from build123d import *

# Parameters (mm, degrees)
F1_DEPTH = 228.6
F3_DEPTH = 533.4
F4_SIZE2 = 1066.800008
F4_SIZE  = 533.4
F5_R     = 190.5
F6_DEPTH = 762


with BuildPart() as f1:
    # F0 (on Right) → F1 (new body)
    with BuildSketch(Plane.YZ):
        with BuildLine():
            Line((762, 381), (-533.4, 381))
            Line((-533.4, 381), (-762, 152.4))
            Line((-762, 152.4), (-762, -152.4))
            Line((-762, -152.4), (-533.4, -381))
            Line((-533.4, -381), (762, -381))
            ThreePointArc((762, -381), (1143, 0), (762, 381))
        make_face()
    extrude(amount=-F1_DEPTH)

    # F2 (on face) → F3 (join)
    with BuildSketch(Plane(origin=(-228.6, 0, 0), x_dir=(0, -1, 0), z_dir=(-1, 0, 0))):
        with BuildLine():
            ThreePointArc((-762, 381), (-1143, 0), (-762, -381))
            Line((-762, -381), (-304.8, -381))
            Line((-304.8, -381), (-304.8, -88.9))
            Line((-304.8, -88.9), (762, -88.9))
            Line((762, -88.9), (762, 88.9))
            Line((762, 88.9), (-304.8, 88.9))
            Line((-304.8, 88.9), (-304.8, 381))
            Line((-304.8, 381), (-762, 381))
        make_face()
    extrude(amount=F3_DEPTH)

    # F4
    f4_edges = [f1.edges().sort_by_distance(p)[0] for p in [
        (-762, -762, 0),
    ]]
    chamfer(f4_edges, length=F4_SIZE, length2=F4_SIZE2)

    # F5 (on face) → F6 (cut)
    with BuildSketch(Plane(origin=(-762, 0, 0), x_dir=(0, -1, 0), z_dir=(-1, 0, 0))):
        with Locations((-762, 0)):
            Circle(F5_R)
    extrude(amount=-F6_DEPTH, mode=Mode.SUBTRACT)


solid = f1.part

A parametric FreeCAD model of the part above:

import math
import FreeCAD as App
import Part
import Sketcher
from FreeCAD import Vector
Q = App.Units.Quantity


def edges_at(feature, points):
    """Names of the edges that pass closest to the given points."""
    edges = feature.Shape.Edges
    near = lambda p: min(range(len(edges)), key=lambda i: edges[i].distToShape(Part.Vertex(*p))[0])
    return sorted({f"Edge{near(p) + 1}" for p in points})

doc = App.newDocument("Part")
body = doc.addObject("PartDesign::Body", "Body")

# Sketch on YZ plane
sketch1 = body.newObject("Sketcher::SketchObject", "Sketch")
sketch1.AttachmentSupport = (doc.getObject("YZ_Plane"), [""])
sketch1.MapMode = "FlatFace"
sketch1.addGeometry(Part.LineSegment(Vector(762, 381, 0), Vector(-533.4, 381, 0)), False)
sketch1.addGeometry(Part.LineSegment(Vector(-533.4, 381, 0), Vector(-762, 152.4, 0)), False)
sketch1.addGeometry(Part.LineSegment(Vector(-762, 152.4, 0), Vector(-762, -152.4, 0)), False)
sketch1.addGeometry(Part.LineSegment(Vector(-762, -152.4, 0), Vector(-533.4, -381, 0)), False)
sketch1.addGeometry(Part.LineSegment(Vector(-533.4, -381, 0), Vector(762, -381, 0)), False)
sketch1.addGeometry(Part.ArcOfCircle(Part.Circle(Vector(762, 0, 0), Vector(0, 0, 1), 381), math.radians(-90), math.radians(90)), False)
sketch1.addConstraint(Sketcher.Constraint("Coincident", 0, 2, 1, 1))
sketch1.addConstraint(Sketcher.Constraint("Coincident", 1, 2, 2, 1))
sketch1.addConstraint(Sketcher.Constraint("Coincident", 2, 2, 3, 1))
sketch1.addConstraint(Sketcher.Constraint("Coincident", 3, 2, 4, 1))
sketch1.addConstraint(Sketcher.Constraint("Tangent", 4, 2, 5, 1))
sketch1.addConstraint(Sketcher.Constraint("Tangent", 5, 2, 0, 1))
sketch1.addConstraint(Sketcher.Constraint("Horizontal", 0))
sketch1.addConstraint(Sketcher.Constraint("Vertical", 2))
sketch1.addConstraint(Sketcher.Constraint("Horizontal", 4))
sketch1.addConstraint(Sketcher.Constraint("Symmetric", 0, 2, 3, 2, -1))
sketch1.addConstraint(Sketcher.Constraint("Perpendicular", 1, 3))
sketch1.addConstraint(Sketcher.Constraint("Equal", 1, 3))
sketch1.addConstraint(Sketcher.Constraint("Radius", 5, Q("15 in")))
sketch1.addConstraint(Sketcher.Constraint("DistanceX", 0, 2, 0, 1, Q("51 in")))
sketch1.addConstraint(Sketcher.Constraint("DistanceY", 2, 2, 2, 1, Q("12 in")))
sketch1.addConstraint(Sketcher.Constraint("DistanceX", -1, 1, 5, 3, Q("30 in")))
pad1 = body.newObject("PartDesign::Pad", "Pad")
pad1.Profile = sketch1
pad1.Length = Q("9 in")
pad1.Reversed = True

# Sketch on YZ plane
sketch2 = body.newObject("Sketcher::SketchObject", "Sketch001")
sketch2.AttachmentSupport = (doc.getObject("YZ_Plane"), [""])
sketch2.MapMode = "FlatFace"
sketch2.AttachmentOffset = App.Placement(Vector(0, 0, -9 * 25.4), App.Rotation())
sketch2.addGeometry(Part.ArcOfCircle(Part.Circle(Vector(762, 0, 0), Vector(0, 0, 1), 381), math.radians(-90), math.radians(90)), False)
sketch2.addGeometry(Part.LineSegment(Vector(762, -381, 0), Vector(304.8, -381, 0)), False)
sketch2.addGeometry(Part.LineSegment(Vector(304.8, -381, 0), Vector(304.8, -88.9, 0)), False)
sketch2.addGeometry(Part.LineSegment(Vector(304.8, -88.9, 0), Vector(-762, -88.9, 0)), False)
sketch2.addGeometry(Part.LineSegment(Vector(-762, -88.9, 0), Vector(-762, 88.9, 0)), False)
sketch2.addGeometry(Part.LineSegment(Vector(-762, 88.9, 0), Vector(304.8, 88.9, 0)), False)
sketch2.addGeometry(Part.LineSegment(Vector(304.8, 88.9, 0), Vector(304.8, 381, 0)), False)
sketch2.addGeometry(Part.LineSegment(Vector(304.8, 381, 0), Vector(762, 381, 0)), False)
sketch2.addConstraint(Sketcher.Constraint("Tangent", 0, 1, 1, 1))
sketch2.addConstraint(Sketcher.Constraint("Coincident", 1, 2, 2, 1))
sketch2.addConstraint(Sketcher.Constraint("Coincident", 2, 2, 3, 1))
sketch2.addConstraint(Sketcher.Constraint("Coincident", 3, 2, 4, 1))
sketch2.addConstraint(Sketcher.Constraint("Coincident", 4, 2, 5, 1))
sketch2.addConstraint(Sketcher.Constraint("Coincident", 5, 2, 6, 1))
sketch2.addConstraint(Sketcher.Constraint("Coincident", 6, 2, 7, 1))
sketch2.addConstraint(Sketcher.Constraint("Tangent", 7, 2, 0, 2))
sketch2.addConstraint(Sketcher.Constraint("Horizontal", 1))
sketch2.addConstraint(Sketcher.Constraint("Vertical", 2))
sketch2.addConstraint(Sketcher.Constraint("Horizontal", 3))
sketch2.addConstraint(Sketcher.Constraint("Vertical", 4))
sketch2.addConstraint(Sketcher.Constraint("Horizontal", 5))
sketch2.addConstraint(Sketcher.Constraint("Vertical", 6))
sketch2.addConstraint(Sketcher.Constraint("Horizontal", 7))
sketch2.addConstraint(Sketcher.Constraint("Symmetric", 2, 2, 5, 2, -1))
sketch2.addConstraint(Sketcher.Constraint("PointOnObject", 0, 3, -1))
sketch2.addConstraint(Sketcher.Constraint("Radius", 0, Q("15 in")))
sketch2.addConstraint(Sketcher.Constraint("DistanceX", 1, 2, 1, 1, Q("18 in")))
sketch2.addConstraint(Sketcher.Constraint("DistanceX", 3, 2, 3, 1, Q("42 in")))
sketch2.addConstraint(Sketcher.Constraint("DistanceY", 4, 1, 4, 2, Q("7 in")))
sketch2.addConstraint(Sketcher.Constraint("DistanceX", -1, 1, 0, 3, Q("30 in")))
pad2 = body.newObject("PartDesign::Pad", "Pad001")
pad2.Profile = sketch2
pad2.Length = Q("21 in")
pad2.Reversed = True
doc.recompute()

chamfer = body.newObject("PartDesign::Chamfer", "Chamfer")
chamfer.Base = (pad2, edges_at(pad2, [(-762, -762, 0)]))
chamfer.ChamferType = "Two distances"
chamfer.Size = Q("21 in")
chamfer.Size2 = 1066.800008
chamfer.FlipDirection = True

# Sketch on YZ plane
sketch3 = body.newObject("Sketcher::SketchObject", "Sketch002")
sketch3.AttachmentSupport = (doc.getObject("YZ_Plane"), [""])
sketch3.MapMode = "FlatFace"
sketch3.AttachmentOffset = App.Placement(Vector(0, 0, -30 * 25.4), App.Rotation())
sketch3.addGeometry(Part.Circle(Vector(762, 0, 0), Vector(0, 0, 1), 190.5), False)
sketch3.addConstraint(Sketcher.Constraint("PointOnObject", 0, 3, -1))
sketch3.addConstraint(Sketcher.Constraint("Diameter", 0, Q("15 in")))
sketch3.addConstraint(Sketcher.Constraint("DistanceX", -1, 1, 0, 3, Q("30 in")))
pocket1 = body.newObject("PartDesign::Pocket", "Pocket")
pocket1.Profile = sketch3
pocket1.Length = Q("30 in")
pocket1.Reversed = True

doc.recompute()
